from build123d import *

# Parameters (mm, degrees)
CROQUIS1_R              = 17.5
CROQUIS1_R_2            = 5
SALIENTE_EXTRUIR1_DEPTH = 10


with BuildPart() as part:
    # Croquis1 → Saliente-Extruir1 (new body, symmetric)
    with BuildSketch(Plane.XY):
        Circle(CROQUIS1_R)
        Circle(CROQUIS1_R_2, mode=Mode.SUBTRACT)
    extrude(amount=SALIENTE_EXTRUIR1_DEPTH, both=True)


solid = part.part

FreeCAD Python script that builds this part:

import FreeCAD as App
import Part
import Sketcher

V = App.Vector

doc = App.newDocument("Part")
body = doc.addObject("PartDesign::Body", "Body")

sketch1 = body.newObject("Sketcher::SketchObject", "Sketch")
sketch1.AttachmentSupport = (doc.getObject("XY_Plane"), [""])
sketch1.MapMode = "FlatFace"
sketch1.addGeometry([
    Part.Circle(V(0, 0, 0), V(0, 0, 1), 17.5),
    Part.Circle(V(0, 0, 0), V(0, 0, 1), 5),
], False)
sketch1.addConstraint([
    Sketcher.Constraint("Coincident", 0, 3, -1, 1),
    Sketcher.Constraint("Coincident", 1, 3, -1, 1),
    Sketcher.Constraint("Diameter", 0, 35.0),
    Sketcher.Constraint("Diameter", 1, 10.0),
])
pad1 = body.newObject("PartDesign::Pad", "Pad")
pad1.Profile = sketch1
pad1.Length = 20
pad1.Midplane = True

doc.recompute()
